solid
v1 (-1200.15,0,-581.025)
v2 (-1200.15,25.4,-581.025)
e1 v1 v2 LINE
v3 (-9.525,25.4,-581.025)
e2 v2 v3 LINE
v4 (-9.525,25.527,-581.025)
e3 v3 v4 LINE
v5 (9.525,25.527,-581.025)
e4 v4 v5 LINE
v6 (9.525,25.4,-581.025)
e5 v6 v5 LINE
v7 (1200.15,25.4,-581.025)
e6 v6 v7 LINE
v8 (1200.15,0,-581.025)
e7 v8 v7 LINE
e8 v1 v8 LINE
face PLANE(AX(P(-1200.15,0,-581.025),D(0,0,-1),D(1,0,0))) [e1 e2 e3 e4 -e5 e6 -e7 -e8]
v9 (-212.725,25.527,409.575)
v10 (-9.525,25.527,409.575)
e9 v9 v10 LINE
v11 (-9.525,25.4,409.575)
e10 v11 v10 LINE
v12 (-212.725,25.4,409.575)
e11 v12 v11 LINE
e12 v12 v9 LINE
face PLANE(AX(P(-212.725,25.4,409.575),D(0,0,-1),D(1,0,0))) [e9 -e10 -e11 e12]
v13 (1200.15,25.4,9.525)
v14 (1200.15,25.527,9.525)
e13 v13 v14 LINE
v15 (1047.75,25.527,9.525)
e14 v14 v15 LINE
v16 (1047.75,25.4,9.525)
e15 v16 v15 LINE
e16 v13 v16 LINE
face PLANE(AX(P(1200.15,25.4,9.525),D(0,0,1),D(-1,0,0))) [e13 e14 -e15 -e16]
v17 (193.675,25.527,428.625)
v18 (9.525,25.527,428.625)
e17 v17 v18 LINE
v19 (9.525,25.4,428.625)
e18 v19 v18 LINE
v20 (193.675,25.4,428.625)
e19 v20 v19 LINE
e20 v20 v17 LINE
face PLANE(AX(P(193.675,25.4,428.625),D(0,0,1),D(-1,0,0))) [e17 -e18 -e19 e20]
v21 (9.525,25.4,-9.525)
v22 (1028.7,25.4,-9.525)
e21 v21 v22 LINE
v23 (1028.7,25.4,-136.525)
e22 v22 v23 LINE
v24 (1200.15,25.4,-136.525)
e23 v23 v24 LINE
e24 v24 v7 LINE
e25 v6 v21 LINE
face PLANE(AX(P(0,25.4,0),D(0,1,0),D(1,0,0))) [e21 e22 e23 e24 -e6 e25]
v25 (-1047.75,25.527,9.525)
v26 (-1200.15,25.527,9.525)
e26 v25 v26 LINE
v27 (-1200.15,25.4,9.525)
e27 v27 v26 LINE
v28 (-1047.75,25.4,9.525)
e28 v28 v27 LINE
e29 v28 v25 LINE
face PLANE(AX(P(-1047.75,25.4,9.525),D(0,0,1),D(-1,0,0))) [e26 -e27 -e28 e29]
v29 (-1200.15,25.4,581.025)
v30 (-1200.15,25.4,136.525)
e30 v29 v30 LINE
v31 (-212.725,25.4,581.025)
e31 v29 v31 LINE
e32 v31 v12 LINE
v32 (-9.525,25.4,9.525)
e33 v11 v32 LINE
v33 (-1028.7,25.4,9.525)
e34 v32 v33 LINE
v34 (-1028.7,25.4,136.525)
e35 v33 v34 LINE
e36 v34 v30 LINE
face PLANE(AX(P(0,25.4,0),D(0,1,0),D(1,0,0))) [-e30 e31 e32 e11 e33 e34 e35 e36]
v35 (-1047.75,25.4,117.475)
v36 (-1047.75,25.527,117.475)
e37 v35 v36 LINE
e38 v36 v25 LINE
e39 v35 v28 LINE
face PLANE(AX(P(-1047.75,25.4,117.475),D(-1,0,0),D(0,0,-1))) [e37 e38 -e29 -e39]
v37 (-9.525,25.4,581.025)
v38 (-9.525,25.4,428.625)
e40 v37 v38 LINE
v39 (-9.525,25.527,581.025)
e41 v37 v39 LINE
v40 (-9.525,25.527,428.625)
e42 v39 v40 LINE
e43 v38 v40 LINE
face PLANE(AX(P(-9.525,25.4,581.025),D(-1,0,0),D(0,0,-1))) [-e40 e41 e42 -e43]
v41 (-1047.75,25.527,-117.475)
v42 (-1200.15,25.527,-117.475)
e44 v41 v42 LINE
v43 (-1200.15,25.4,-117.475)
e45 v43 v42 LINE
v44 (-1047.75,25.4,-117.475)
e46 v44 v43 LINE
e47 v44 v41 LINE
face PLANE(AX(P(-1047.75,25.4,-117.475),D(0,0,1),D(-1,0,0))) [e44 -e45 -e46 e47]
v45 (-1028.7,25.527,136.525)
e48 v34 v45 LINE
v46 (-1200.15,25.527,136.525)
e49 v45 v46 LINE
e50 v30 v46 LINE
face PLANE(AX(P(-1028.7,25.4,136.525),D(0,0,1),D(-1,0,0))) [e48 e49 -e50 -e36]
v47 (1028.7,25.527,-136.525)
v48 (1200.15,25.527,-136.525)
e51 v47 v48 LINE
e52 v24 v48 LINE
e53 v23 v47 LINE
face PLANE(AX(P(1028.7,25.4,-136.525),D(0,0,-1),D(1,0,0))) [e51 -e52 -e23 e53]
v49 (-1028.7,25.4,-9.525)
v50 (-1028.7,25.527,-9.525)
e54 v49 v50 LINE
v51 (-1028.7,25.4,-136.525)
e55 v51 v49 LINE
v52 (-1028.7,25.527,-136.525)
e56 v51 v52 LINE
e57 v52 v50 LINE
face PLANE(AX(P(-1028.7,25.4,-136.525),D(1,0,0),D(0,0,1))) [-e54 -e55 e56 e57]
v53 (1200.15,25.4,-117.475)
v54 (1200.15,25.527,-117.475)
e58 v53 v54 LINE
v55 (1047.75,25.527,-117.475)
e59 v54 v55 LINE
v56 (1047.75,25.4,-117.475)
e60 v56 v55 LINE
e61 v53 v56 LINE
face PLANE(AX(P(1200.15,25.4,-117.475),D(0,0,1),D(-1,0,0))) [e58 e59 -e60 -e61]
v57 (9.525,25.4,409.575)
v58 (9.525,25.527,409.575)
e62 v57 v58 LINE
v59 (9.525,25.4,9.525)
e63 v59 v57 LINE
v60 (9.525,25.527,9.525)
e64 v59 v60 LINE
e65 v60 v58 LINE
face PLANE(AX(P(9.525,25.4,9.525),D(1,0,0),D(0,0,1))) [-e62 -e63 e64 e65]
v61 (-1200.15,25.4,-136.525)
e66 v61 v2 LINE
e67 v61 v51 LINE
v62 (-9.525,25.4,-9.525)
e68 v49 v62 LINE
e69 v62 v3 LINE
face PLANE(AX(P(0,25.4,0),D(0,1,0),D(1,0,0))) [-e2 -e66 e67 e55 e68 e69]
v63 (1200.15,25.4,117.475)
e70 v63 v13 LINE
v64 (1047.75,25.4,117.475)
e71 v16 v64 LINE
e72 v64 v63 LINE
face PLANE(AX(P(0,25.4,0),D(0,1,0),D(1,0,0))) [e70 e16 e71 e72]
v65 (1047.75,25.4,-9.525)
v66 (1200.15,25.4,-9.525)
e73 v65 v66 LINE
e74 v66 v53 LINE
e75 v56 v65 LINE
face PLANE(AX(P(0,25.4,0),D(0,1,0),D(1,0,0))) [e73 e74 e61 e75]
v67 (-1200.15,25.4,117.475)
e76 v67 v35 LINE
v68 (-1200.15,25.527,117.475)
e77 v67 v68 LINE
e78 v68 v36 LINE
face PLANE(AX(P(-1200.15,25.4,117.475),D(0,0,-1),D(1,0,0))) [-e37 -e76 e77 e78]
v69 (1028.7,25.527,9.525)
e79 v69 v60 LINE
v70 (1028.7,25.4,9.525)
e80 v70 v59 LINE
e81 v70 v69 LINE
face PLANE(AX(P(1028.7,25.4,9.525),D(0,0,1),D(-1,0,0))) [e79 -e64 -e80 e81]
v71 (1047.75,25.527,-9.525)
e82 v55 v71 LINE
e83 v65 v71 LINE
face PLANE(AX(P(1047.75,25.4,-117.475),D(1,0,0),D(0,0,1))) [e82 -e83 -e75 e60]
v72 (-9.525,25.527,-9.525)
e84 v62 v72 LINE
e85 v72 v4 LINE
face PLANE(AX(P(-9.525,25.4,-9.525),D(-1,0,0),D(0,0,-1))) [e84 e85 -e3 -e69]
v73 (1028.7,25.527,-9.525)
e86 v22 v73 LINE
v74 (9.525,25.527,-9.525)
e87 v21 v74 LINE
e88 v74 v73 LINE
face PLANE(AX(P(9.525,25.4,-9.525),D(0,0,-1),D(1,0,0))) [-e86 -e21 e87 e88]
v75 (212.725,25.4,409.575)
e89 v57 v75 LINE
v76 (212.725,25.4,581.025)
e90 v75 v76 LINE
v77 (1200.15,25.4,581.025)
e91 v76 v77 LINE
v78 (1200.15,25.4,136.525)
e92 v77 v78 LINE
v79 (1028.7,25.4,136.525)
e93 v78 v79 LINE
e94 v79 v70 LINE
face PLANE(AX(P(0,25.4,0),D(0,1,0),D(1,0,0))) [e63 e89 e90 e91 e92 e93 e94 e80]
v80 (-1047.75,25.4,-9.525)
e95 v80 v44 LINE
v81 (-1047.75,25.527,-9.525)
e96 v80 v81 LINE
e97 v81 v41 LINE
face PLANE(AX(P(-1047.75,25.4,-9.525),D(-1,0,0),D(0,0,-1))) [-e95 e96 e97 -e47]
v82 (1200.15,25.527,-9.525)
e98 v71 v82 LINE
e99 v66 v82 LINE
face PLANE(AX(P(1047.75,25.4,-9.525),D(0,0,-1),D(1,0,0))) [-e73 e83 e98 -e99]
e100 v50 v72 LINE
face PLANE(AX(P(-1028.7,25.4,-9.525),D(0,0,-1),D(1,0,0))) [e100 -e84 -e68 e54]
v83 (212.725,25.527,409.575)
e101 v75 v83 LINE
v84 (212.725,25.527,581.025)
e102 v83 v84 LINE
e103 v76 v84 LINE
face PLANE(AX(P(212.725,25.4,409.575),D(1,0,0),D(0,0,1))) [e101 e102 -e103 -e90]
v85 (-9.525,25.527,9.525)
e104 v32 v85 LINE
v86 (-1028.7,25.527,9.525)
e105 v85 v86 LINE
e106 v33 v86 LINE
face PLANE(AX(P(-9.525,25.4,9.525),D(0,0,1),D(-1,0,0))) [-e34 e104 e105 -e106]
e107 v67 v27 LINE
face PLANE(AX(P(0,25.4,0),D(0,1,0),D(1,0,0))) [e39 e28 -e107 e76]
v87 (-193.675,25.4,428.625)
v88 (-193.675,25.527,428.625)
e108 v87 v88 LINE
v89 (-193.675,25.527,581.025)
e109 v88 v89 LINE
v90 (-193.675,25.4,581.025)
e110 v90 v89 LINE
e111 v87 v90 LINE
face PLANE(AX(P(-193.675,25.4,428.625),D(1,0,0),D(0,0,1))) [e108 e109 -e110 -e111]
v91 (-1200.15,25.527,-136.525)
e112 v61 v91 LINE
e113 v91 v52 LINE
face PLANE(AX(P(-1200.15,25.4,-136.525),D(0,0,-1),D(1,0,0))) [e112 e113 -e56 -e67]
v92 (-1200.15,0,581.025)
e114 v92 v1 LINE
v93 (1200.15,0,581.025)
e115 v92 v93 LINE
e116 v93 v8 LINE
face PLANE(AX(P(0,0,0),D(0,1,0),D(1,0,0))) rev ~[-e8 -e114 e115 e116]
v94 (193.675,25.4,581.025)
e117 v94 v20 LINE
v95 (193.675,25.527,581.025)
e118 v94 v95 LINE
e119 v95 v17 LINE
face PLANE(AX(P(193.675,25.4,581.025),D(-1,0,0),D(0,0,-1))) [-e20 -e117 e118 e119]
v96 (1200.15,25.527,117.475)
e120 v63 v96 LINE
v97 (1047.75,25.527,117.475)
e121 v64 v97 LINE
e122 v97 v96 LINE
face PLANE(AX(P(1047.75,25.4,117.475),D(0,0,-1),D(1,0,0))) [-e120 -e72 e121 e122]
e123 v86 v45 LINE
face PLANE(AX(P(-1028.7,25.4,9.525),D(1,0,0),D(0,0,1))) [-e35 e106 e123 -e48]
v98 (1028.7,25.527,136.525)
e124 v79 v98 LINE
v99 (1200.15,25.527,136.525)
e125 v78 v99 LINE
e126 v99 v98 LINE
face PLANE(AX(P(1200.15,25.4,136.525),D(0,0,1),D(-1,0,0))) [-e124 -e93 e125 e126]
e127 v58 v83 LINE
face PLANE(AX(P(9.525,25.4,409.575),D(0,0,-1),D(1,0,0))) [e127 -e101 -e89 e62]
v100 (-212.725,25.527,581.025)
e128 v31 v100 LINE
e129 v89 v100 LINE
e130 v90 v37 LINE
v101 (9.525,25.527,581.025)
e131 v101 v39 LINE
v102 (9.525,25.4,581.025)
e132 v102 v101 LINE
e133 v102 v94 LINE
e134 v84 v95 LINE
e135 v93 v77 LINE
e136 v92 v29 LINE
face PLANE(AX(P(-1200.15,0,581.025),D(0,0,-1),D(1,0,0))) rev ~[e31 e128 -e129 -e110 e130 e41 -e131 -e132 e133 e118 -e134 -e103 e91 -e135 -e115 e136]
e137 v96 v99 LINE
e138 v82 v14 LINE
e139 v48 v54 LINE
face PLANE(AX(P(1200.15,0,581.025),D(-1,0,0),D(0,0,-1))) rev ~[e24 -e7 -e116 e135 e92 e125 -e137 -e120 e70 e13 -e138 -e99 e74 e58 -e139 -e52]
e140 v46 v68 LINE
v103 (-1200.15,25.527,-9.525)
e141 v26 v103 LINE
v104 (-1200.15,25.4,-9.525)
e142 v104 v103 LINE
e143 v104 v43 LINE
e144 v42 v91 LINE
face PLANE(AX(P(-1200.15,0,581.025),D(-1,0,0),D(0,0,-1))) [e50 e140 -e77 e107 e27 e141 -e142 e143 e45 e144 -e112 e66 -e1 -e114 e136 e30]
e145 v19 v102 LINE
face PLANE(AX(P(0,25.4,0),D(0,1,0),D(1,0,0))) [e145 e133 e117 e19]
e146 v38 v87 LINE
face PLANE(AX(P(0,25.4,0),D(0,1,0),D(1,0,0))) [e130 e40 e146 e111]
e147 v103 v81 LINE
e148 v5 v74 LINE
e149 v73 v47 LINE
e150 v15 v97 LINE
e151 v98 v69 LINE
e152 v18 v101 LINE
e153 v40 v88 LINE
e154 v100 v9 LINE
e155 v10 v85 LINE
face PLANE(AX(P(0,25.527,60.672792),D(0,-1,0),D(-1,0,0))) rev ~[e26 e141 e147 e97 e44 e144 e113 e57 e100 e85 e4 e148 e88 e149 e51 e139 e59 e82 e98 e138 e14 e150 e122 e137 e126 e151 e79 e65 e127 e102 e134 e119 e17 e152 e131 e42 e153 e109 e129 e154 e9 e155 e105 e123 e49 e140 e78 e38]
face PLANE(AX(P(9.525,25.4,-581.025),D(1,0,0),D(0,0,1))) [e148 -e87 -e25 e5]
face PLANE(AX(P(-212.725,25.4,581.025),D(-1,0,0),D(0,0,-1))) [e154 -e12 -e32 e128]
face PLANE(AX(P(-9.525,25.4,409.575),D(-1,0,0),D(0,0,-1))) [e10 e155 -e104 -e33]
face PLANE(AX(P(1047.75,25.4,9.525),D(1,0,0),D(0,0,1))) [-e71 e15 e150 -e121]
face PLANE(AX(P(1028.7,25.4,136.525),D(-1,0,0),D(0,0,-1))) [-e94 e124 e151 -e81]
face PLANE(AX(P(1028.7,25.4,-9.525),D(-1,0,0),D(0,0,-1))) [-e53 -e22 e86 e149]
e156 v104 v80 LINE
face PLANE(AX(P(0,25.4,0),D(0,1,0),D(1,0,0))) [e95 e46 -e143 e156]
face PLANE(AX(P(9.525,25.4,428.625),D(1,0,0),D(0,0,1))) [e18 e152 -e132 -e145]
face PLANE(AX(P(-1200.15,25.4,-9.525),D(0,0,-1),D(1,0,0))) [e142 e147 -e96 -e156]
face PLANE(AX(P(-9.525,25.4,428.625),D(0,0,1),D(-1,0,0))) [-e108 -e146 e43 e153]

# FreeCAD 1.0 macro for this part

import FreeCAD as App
import Part
import Sketcher
Q = App.Units.Quantity


def add_polygon(sketch, points):
    """Adds a closed chain of lines whose ends are joined by coincident constraints."""
    first, n = sketch.GeometryCount, len(points)
    for a, b in zip(points, points[1:] + points[:1]):
        sketch.addGeometry(Part.LineSegment(App.Vector(*a, 0), App.Vector(*b, 0)), False)
    for i in range(n):
        sketch.addConstraint(Sketcher.Constraint("Coincident", first + i, 2, first + (i + 1) % n, 1))

doc = App.newDocument("Part")
body = doc.addObject("PartDesign::Body", "Body")

sketch1 = body.newObject("Sketcher::SketchObject", "Sketch")
sketch1.AttachmentSupport = (doc.getObject("XZ_Plane"), [""])
sketch1.MapMode = "FlatFace"
add_polygon(sketch1, [(-1200, -581), (-1200, 581), (1200, 581), (1200, -581)])
sketch1.addConstraint([
    Sketcher.Constraint("Vertical", 0),
    Sketcher.Constraint("Horizontal", 1),
    Sketcher.Constraint("Vertical", 2),
    Sketcher.Constraint("Horizontal", 3),
    Sketcher.Constraint("Symmetric", 0, 2, 2, 2, -1, 1),
    Sketcher.Constraint("DistanceX", 1, 1, 1, 2, Q("94.5 in")),
    Sketcher.Constraint("DistanceY", 0, 1, 0, 2, Q("45.75 in")),
])
pad1 = body.newObject("PartDesign::Pad", "Pad")
pad1.Profile = sketch1
pad1.Length = Q("1 in")
pad1.Reversed = True

sketch2 = body.newObject("Sketcher::SketchObject", "Sketch001")
sketch2.AttachmentSupport = (doc.getObject("XZ_Plane"), [""])
sketch2.MapMode = "FlatFace"
sketch2.AttachmentOffset = App.Placement(App.Vector(0, 0, -1 * 25.4), App.Rotation())
add_polygon(sketch2, [(-1029, -137), (-1200, -137), (-1200, -117), (-1048, -117), (-1048, -10), (-1200, -10), (-1200, 10), (-1048, 10), (-1048, 117), (-1200, 117), (-1200, 137), (-1029, 137), (-1029, 10), (-10, 10), (-10, 410), (-213, 410), (-213, 581), (-194, 581), (-194, 429), (-10, 429), (-10, 581), (10, 581), (10, 429), (194, 429), (194, 581), (213, 581), (213, 410), (10, 410), (10, 10), (1029, 10), (1029, 137), (1200, 137), (1200, 117), (1048, 117), (1048, 10), (1200, 10), (1200, -10), (1048, -10), (1048, -117), (1200, -117), (1200, -137), (1029, -137), (1029, -10), (10, -10), (10, -581), (-10, -581), (-10, -10), (-1029, -10)])
sketch2.addConstraint([
    Sketcher.Constraint("Horizontal", 0),
    Sketcher.Constraint("Vertical", 1),
    Sketcher.Constraint("Horizontal", 2),
    Sketcher.Constraint("Vertical", 3),
    Sketcher.Constraint("Horizontal", 4),
    Sketcher.Constraint("Vertical", 5),
    Sketcher.Constraint("Horizontal", 6),
    Sketcher.Constraint("Vertical", 7),
    Sketcher.Constraint("Horizontal", 8),
    Sketcher.Constraint("Vertical", 9),
    Sketcher.Constraint("Horizontal", 10),
    Sketcher.Constraint("Vertical", 11),
    Sketcher.Constraint("Horizontal", 12),
    Sketcher.Constraint("Vertical", 13),
    Sketcher.Constraint("Horizontal", 14),
    Sketcher.Constraint("Vertical", 15),
    Sketcher.Constraint("Horizontal", 16),
    Sketcher.Constraint("Vertical", 17),
    Sketcher.Constraint("Horizontal", 18),
    Sketcher.Constraint("Vertical", 19),
    Sketcher.Constraint("Horizontal", 20),
    Sketcher.Constraint("Vertical", 21),
    Sketcher.Constraint("Horizontal", 22),
    Sketcher.Constraint("Vertical", 23),
    Sketcher.Constraint("Horizontal", 24),
    Sketcher.Constraint("Vertical", 25),
    Sketcher.Constraint("Horizontal", 26),
    Sketcher.Constraint("Vertical", 27),
    Sketcher.Constraint("Horizontal", 28),
    Sketcher.Constraint("Vertical", 29),
    Sketcher.Constraint("Horizontal", 30),
    Sketcher.Constraint("Vertical", 31),
    Sketcher.Constraint("Horizontal", 32),
    Sketcher.Constraint("Vertical", 33),
    Sketcher.Constraint("Horizontal", 34),
    Sketcher.Constraint("Vertical", 35),
    Sketcher.Constraint("Horizontal", 36),
    Sketcher.Constraint("Vertical", 37),
    Sketcher.Constraint("Horizontal", 38),
    Sketcher.Constraint("Vertical", 39),
    Sketcher.Constraint("Horizontal", 40),
    Sketcher.Constraint("Vertical", 41),
    Sketcher.Constraint("Horizontal", 42),
    Sketcher.Constraint("Vertical", 43),
    Sketcher.Constraint("Horizontal", 44),
    Sketcher.Constraint("Vertical", 45),
    Sketcher.Constraint("Horizontal", 46),
    Sketcher.Constraint("Vertical", 47),
    Sketcher.Constraint("Symmetric", 0, 2, 30, 2, -1, 1),
    Sketcher.Constraint("Symmetric", 2, 2, 32, 2, -1, 1),
    Sketcher.Constraint("Symmetric", 4, 2, 34, 2, -1, 1),
    Sketcher.Constraint("Symmetric", 6, 2, 36, 2, -1, 1),
    Sketcher.Constraint("Symmetric", 8, 2, 38, 2, -1, 1),
    Sketcher.Constraint("Symmetric", 10, 2, 40, 2, -1, 1),
    Sketcher.Constraint("Symmetric", 12, 2, 42, 2, -1, 1),
    Sketcher.Constraint("Symmetric", 19, 2, 43, 2, -1, 1),
    Sketcher.Constraint("Symmetric", 27, 2, 45, 2, -1, 1),
    Sketcher.Constraint("Symmetric", 18, 2, 21, 2, -2),
    Sketcher.Constraint("Symmetric", 16, 2, 23, 2, -2),
    Sketcher.Constraint("Symmetric", 14, 2, 25, 2, -2),
    Sketcher.Constraint("Symmetric", 12, 2, 27, 2, -2),
    Sketcher.Constraint("Symmetric", 10, 2, 29, 2, -2),
    Sketcher.Constraint("Symmetric", 8, 2, 31, 2, -2),
    Sketcher.Constraint("Symmetric", 6, 2, 33, 2, -2),
    Sketcher.Constraint("Horizontal", 6, 2, 11, 2),
    Sketcher.Constraint("Horizontal", 16, 2, 19, 2),
    Sketcher.Constraint("Vertical", 1, 2, 4, 2),
    Sketcher.Constraint("Vertical", 11, 2, 46, 2),
    Sketcher.Constraint("Equal", 16, 20),
    Sketcher.Constraint("Equal", 44, 1),
    Sketcher.Constraint("Equal", 1, 5),
    Sketcher.Constraint("Equal", 40, 15),
    Sketcher.Constraint("Equal", 38, 17),
    Sketcher.Constraint("DistanceX", 2, 1, 2, 2, Q("6 in")),
    Sketcher.Constraint("DistanceX", 14, 2, 14, 1, Q("8 in")),
    Sketcher.Constraint("DistanceY", 11, 2, 11, 1, Q("5 in")),
    Sketcher.Constraint("DistanceY", 43, 2, 43, 1, Q("22.5 in")),
    Sketcher.Constraint("DistanceY", 43, 2, 26, 2, Q("39 in")),
    Sketcher.Constraint("DistanceX", 0, 2, 0, 1, Q("6.75 in")),
    Sketcher.Constraint("DistanceX", 10, 2, -1, 1, Q("40.5 in")),
])
pad2 = body.newObject("PartDesign::Pad", "Pad001")
pad2.Profile = sketch2
pad2.Length = Q("0.005 in")
pad2.Reversed = True

doc.recompute()
